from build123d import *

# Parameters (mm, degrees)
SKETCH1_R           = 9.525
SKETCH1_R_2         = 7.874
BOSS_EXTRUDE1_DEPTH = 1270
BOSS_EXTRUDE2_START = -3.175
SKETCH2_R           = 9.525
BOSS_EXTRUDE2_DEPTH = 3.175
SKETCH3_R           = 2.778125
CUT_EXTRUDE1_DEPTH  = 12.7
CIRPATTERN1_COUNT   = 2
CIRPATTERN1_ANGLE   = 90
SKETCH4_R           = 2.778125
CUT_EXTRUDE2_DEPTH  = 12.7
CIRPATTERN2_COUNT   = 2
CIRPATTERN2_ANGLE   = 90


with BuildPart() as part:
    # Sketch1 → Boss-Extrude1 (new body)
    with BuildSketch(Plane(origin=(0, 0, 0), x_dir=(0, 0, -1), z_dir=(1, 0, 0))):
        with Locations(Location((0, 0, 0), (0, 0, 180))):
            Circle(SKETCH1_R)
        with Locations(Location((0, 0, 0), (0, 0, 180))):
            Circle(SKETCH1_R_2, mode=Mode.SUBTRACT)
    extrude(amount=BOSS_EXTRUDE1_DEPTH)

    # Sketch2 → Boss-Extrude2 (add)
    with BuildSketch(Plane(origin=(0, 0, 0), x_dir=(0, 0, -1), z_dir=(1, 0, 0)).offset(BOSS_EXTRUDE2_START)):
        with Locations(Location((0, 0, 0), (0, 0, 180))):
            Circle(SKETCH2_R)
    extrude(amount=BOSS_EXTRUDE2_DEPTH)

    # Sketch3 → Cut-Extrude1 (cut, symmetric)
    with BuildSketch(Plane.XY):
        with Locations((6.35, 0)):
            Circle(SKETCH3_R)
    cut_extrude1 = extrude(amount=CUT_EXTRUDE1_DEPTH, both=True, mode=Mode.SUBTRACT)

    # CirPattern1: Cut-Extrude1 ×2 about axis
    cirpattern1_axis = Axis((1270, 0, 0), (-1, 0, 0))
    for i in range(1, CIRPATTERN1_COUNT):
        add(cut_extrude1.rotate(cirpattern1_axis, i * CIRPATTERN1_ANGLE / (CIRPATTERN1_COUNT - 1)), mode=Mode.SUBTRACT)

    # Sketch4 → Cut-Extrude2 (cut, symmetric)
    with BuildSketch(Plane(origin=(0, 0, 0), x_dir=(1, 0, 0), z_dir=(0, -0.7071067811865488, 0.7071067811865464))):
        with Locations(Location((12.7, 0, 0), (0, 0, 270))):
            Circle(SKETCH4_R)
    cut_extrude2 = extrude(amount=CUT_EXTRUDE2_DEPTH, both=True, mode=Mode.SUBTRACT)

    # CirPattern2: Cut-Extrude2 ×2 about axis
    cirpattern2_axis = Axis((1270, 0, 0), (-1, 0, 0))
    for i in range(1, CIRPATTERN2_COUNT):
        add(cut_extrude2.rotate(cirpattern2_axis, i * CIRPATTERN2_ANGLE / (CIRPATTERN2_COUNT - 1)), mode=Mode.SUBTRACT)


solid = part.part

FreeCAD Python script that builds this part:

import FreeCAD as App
import Part
import Sketcher
from FreeCAD import Vector
Q = App.Units.Quantity

doc = App.newDocument("Part")
params = doc.addObject("Spreadsheet::Sheet", "Params")
for row, (alias, value) in enumerate([
    ("sketch1_diameter", "0.75 in"),
    ("sketch1_diameter2", "0.62 in"),
    ("pad1_length", "50 in"),
    ("sketch2_diameter", "0.75 in"),
    ("pad2_length", "0.125 in"),
    ("sketch3_diameter", "0.21875 in"),
    ("pocket1_length", "1 in"),
    ("sketch4_diameter", "0.21875 in"),
    ("pocket2_length", "1 in"),
], start=1):
    params.set(f"A{row}", alias)
    params.set(f"B{row}", "=" + value)
    params.setAlias(f"B{row}", alias)

body = doc.addObject("PartDesign::Body", "Body")

# Sketch on YZ plane
sketch1 = body.newObject("Sketcher::SketchObject", "Sketch")
sketch1.AttachmentSupport = (doc.getObject("YZ_Plane"), [""])
sketch1.MapMode = "FlatFace"
sketch1.addGeometry([
    Part.Circle(Vector(0, 0, 0), Vector(0, 0, 1), 10),
    Part.Circle(Vector(0, 0, 0), Vector(0, 0, 1), 8),
], False)
sketch1.addConstraint([
    Sketcher.Constraint("Coincident", 0, 3, -1, 1),
    Sketcher.Constraint("Coincident", 1, 3, -1, 1),
    Sketcher.Constraint("Diameter", 0, Q("0.75 in")),
    Sketcher.Constraint("Diameter", 1, Q("0.62 in")),
])
sketch1.setExpression("Constraints[2]", "Params.sketch1_diameter")
sketch1.setExpression("Constraints[3]", "Params.sketch1_diameter2")
pad1 = body.newObject("PartDesign::Pad", "Pad")
pad1.Profile = sketch1
pad1.setExpression("Length", "Params.pad1_length")

# Sketch on YZ plane
sketch2 = body.newObject("Sketcher::SketchObject", "Sketch001")
sketch2.AttachmentSupport = (doc.getObject("YZ_Plane"), [""])
sketch2.MapMode = "FlatFace"
sketch2.AttachmentOffset = App.Placement(Vector(0, 0, -0.125 * 25.4), App.Rotation())
sketch2.addGeometry(Part.Circle(Vector(0, 0, 0), Vector(0, 0, 1), 10), False)
sketch2.addConstraint([
    Sketcher.Constraint("Coincident", 0, 3, -1, 1),
    Sketcher.Constraint("Diameter", 0, Q("0.75 in")),
])
sketch2.setExpression("Constraints[1]", "Params.sketch2_diameter")
pad2 = body.newObject("PartDesign::Pad", "Pad001")
pad2.Profile = sketch2
pad2.setExpression("Length", "Params.pad2_length")

# Sketch on XY plane
sketch3 = body.newObject("Sketcher::SketchObject", "Sketch002")
sketch3.AttachmentSupport = (doc.getObject("XY_Plane"), [""])
sketch3.MapMode = "FlatFace"
sketch3.addGeometry(Part.Circle(Vector(6.3, 0, 0), Vector(0, 0, 1), 2.8), False)
sketch3.addConstraint([
    Sketcher.Constraint("PointOnObject", 0, 3, -1),
    Sketcher.Constraint("Diameter", 0, Q("0.21875 in")),
    Sketcher.Constraint("DistanceX", -1, 1, 0, 3, Q("0.25 in")),
])
sketch3.setExpression("Constraints[1]", "Params.sketch3_diameter")
pocket1 = body.newObject("PartDesign::Pocket", "Pocket")
pocket1.Profile = sketch3
pocket1.setExpression("Length", "Params.pocket1_length")
pocket1.Midplane = True
doc.recompute()

polarpattern = body.newObject("PartDesign::PolarPattern", "PolarPattern")
polarpattern.Originals = [pocket1]
polarpattern.Axis = (doc.getObject("X_Axis"), [""])
polarpattern.Angle = 90
polarpattern.Occurrences = 2
polarpattern.Reversed = True
body.Tip = polarpattern

# Sketch on an angled plane
sketch4 = body.newObject("Sketcher::SketchObject", "Sketch003")
sketch4.Placement = App.Placement(Vector(0, 0, 0), App.Rotation(Vector(1, 0, 0), Vector(0, 0.707106781, 0.707106781), Vector(0, -0.707106781, 0.707106781), "ZXY"))
sketch4.addGeometry(Part.Circle(Vector(12.7, 0, 0), Vector(0, 0, 1), 2.8), False)
sketch4.addConstraint([
    Sketcher.Constraint("PointOnObject", 0, 3, -1),
    Sketcher.Constraint("Diameter", 0, Q("0.21875 in")),
    Sketcher.Constraint("DistanceX", -1, 1, 0, 3, Q("0.5 in")),
])
sketch4.setExpression("Constraints[1]", "Params.sketch4_diameter")
pocket2 = body.newObject("PartDesign::Pocket", "Pocket001")
pocket2.Profile = sketch4
pocket2.setExpression("Length", "Params.pocket2_length")
pocket2.Midplane = True
doc.recompute()

polarpattern2 = body.newObject("PartDesign::PolarPattern", "PolarPattern001")
polarpattern2.Originals = [pocket2]
polarpattern2.Axis = (doc.getObject("X_Axis"), [""])
polarpattern2.Angle = 90
polarpattern2.Occurrences = 2
polarpattern2.Reversed = True
body.Tip = polarpattern2

doc.recompute()
